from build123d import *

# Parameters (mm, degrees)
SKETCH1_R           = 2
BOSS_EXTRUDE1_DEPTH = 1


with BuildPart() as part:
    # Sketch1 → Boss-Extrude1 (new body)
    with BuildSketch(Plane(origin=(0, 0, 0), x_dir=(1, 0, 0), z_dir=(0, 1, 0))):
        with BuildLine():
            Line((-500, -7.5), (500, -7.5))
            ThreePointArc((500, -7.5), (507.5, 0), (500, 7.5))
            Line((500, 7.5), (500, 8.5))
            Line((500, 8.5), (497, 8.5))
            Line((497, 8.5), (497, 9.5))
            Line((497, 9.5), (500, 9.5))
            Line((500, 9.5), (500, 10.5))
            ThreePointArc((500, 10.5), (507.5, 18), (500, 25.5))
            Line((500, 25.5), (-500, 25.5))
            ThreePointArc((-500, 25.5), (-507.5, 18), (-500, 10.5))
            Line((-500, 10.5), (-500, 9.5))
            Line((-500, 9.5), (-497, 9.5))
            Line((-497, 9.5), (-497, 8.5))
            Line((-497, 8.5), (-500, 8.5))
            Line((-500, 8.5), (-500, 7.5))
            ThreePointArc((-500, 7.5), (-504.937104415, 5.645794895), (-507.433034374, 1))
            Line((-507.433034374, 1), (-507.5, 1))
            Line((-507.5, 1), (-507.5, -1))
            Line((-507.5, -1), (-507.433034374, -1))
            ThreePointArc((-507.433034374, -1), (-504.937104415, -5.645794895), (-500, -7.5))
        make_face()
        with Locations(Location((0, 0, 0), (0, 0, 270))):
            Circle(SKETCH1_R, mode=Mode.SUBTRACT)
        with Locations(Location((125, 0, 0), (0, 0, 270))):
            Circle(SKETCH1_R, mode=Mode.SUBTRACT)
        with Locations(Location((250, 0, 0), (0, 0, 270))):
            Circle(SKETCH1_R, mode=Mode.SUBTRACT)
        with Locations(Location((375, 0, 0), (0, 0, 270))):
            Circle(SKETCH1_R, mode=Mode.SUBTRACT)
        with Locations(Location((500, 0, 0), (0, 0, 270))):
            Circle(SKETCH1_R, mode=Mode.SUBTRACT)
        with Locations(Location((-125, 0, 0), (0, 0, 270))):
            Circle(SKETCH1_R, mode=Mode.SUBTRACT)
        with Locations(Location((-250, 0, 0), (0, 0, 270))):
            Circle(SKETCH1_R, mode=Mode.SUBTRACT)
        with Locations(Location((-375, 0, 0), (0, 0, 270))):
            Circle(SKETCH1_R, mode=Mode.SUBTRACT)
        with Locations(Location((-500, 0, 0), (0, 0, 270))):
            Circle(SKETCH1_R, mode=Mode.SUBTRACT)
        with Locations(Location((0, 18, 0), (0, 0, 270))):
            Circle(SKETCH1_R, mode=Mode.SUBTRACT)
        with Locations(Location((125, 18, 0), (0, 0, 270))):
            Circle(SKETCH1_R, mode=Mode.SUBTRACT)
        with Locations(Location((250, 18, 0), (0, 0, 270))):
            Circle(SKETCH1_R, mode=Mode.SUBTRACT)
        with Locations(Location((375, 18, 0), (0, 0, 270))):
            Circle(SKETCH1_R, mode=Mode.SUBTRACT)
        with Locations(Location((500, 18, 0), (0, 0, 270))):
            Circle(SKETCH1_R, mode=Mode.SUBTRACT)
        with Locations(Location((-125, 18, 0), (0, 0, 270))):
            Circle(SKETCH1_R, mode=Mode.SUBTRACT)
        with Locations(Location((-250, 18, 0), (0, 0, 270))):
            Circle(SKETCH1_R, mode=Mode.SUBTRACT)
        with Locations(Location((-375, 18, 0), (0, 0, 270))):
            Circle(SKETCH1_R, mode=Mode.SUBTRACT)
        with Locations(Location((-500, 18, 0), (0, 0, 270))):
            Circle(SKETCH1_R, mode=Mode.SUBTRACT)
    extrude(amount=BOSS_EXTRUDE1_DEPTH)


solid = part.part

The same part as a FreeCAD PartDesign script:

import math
import FreeCAD as App
import Part
import Sketcher

V = App.Vector

doc = App.newDocument("Part")
params = doc.addObject("Spreadsheet::Sheet", "Params")
for row, (alias, value) in enumerate([
    ("sketch1_diameter", "4 mm"),
    ("sketch1_radius", "7.5 mm"),
    ("sketch1_width", "1000 mm"),
    ("sketch1_width2", "3 mm"),
    ("sketch1_height", "1 mm"),
    ("pad1_length", "1 mm"),
], start=1):
    params.set(f"A{row}", alias)
    params.set(f"B{row}", "=" + value)
    params.setAlias(f"B{row}", alias)

body = doc.addObject("PartDesign::Body", "Body")

sketch1 = body.newObject("Sketcher::SketchObject", "Sketch")
sketch1.AttachmentSupport = (doc.getObject("XZ_Plane"), [""])
sketch1.MapMode = "FlatFace"
sketch1.addGeometry(Part.LineSegment(V(-500, 7.5, 0), V(500, 7.5, 0)), False)
sketch1.addGeometry(Part.ArcOfCircle(Part.Circle(V(500, 0, 0), V(0, 0, 1), 7.5), math.radians(-90), math.radians(90)), False)
sketch1.addGeometry(Part.LineSegment(V(500, -7.5, 0), V(500, -8.5, 0)), False)
sketch1.addGeometry(Part.LineSegment(V(500, -8.5, 0), V(497, -8.5, 0)), False)
sketch1.addGeometry(Part.LineSegment(V(497, -8.5, 0), V(497, -9.5, 0)), False)
sketch1.addGeometry(Part.LineSegment(V(497, -9.5, 0), V(500, -9.5, 0)), False)
sketch1.addGeometry(Part.LineSegment(V(500, -9.5, 0), V(500, -10.5, 0)), False)
sketch1.addGeometry(Part.ArcOfCircle(Part.Circle(V(500, -18, 0), V(0, 0, 1), 7.5), math.radians(-90), math.radians(90)), False)
sketch1.addGeometry(Part.LineSegment(V(500, -25.5, 0), V(-500, -25.5, 0)), False)
sketch1.addGeometry(Part.ArcOfCircle(Part.Circle(V(-500, -18, 0), V(0, 0, 1), 7.5), math.radians(90), math.radians(270)), False)
sketch1.addGeometry(Part.LineSegment(V(-500, -10.5, 0), V(-500, -9.5, 0)), False)
sketch1.addGeometry(Part.LineSegment(V(-500, -9.5, 0), V(-497, -9.5, 0)), False)
sketch1.addGeometry(Part.LineSegment(V(-497, -9.5, 0), V(-497, -8.5, 0)), False)
sketch1.addGeometry(Part.LineSegment(V(-497, -8.5, 0), V(-500, -8.5, 0)), False)
sketch1.addGeometry(Part.LineSegment(V(-500, -8.5, 0), V(-500, -7.5, 0)), False)
sketch1.addGeometry(Part.ArcOfCircle(Part.Circle(V(-500, 0, 0), V(0, 0, 1), 7.5), math.radians(-172), math.radians(-90)), False)
sketch1.addGeometry(Part.LineSegment(V(-507.43, -1, 0), V(-507.5, -1, 0)), False)
sketch1.addGeometry(Part.LineSegment(V(-507.5, -1, 0), V(-507.5, 1, 0)), False)
sketch1.addGeometry(Part.LineSegment(V(-507.5, 1, 0), V(-507.43, 1, 0)), False)
sketch1.addGeometry(Part.ArcOfCircle(Part.Circle(V(-500, 0, 0), V(0, 0, 1), 7.5), math.radians(90), math.radians(172)), False)
sketch1.addGeometry(Part.Circle(V(-500, 0, 0), V(0, 0, 1), 2), False)
sketch1.addGeometry(Part.Circle(V(-375, 0, 0), V(0, 0, 1), 2), False)
sketch1.addGeometry(Part.Circle(V(-250, 0, 0), V(0, 0, 1), 2), False)
sketch1.addGeometry(Part.Circle(V(-125, 0, 0), V(0, 0, 1), 2), False)
sketch1.addGeometry(Part.Circle(V(0, 0, 0), V(0, 0, 1), 2), False)
sketch1.addGeometry(Part.Circle(V(125, 0, 0), V(0, 0, 1), 2), False)
sketch1.addGeometry(Part.Circle(V(250, 0, 0), V(0, 0, 1), 2), False)
sketch1.addGeometry(Part.Circle(V(375, 0, 0), V(0, 0, 1), 2), False)
sketch1.addGeometry(Part.Circle(V(500, 0, 0), V(0, 0, 1), 2), False)
sketch1.addGeometry(Part.Circle(V(-500, -18, 0), V(0, 0, 1), 2), False)
sketch1.addGeometry(Part.Circle(V(-375, -18, 0), V(0, 0, 1), 2), False)
sketch1.addGeometry(Part.Circle(V(-250, -18, 0), V(0, 0, 1), 2), False)
sketch1.addGeometry(Part.Circle(V(-125, -18, 0), V(0, 0, 1), 2), False)
sketch1.addGeometry(Part.Circle(V(0, -18, 0), V(0, 0, 1), 2), False)
sketch1.addGeometry(Part.Circle(V(125, -18, 0), V(0, 0, 1), 2), False)
sketch1.addGeometry(Part.Circle(V(250, -18, 0), V(0, 0, 1), 2), False)
sketch1.addGeometry(Part.Circle(V(375, -18, 0), V(0, 0, 1), 2), False)
sketch1.addGeometry(Part.Circle(V(500, -18, 0), V(0, 0, 1), 2), False)
sketch1.addConstraint(Sketcher.Constraint("Tangent", 0, 2, 1, 2))
sketch1.addConstraint(Sketcher.Constraint("Coincident", 1, 1, 2, 1))
sketch1.addConstraint(Sketcher.Constraint("Coincident", 2, 2, 3, 1))
sketch1.addConstraint(Sketcher.Constraint("Coincident", 3, 2, 4, 1))
sketch1.addConstraint(Sketcher.Constraint("Coincident", 4, 2, 5, 1))
sketch1.addConstraint(Sketcher.Constraint("Coincident", 5, 2, 6, 1))
sketch1.addConstraint(Sketcher.Constraint("Coincident", 6, 2, 7, 2))
sketch1.addConstraint(Sketcher.Constraint("Tangent", 7, 1, 8, 1))
sketch1.addConstraint(Sketcher.Constraint("Tangent", 8, 2, 9, 2))
sketch1.addConstraint(Sketcher.Constraint("Coincident", 9, 1, 10, 1))
sketch1.addConstraint(Sketcher.Constraint("Coincident", 10, 2, 11, 1))
sketch1.addConstraint(Sketcher.Constraint("Coincident", 11, 2, 12, 1))
sketch1.addConstraint(Sketcher.Constraint("Coincident", 12, 2, 13, 1))
sketch1.addConstraint(Sketcher.Constraint("Coincident", 13, 2, 14, 1))
sketch1.addConstraint(Sketcher.Constraint("Coincident", 14, 2, 15, 2))
sketch1.addConstraint(Sketcher.Constraint("Coincident", 15, 1, 16, 1))
sketch1.addConstraint(Sketcher.Constraint("Coincident", 16, 2, 17, 1))
sketch1.addConstraint(Sketcher.Constraint("Coincident", 17, 2, 18, 1))
sketch1.addConstraint(Sketcher.Constraint("Coincident", 18, 2, 19, 2))
sketch1.addConstraint(Sketcher.Constraint("Tangent", 19, 1, 0, 1))
sketch1.addConstraint(Sketcher.Constraint("Horizontal", 0))
sketch1.addConstraint(Sketcher.Constraint("Vertical", 2))
sketch1.addConstraint(Sketcher.Constraint("Horizontal", 3))
sketch1.addConstraint(Sketcher.Constraint("Vertical", 4))
sketch1.addConstraint(Sketcher.Constraint("Horizontal", 5))
sketch1.addConstraint(Sketcher.Constraint("Vertical", 6))
sketch1.addConstraint(Sketcher.Constraint("Horizontal", 8))
sketch1.addConstraint(Sketcher.Constraint("Vertical", 10))
sketch1.addConstraint(Sketcher.Constraint("Horizontal", 11))
sketch1.addConstraint(Sketcher.Constraint("Vertical", 12))
sketch1.addConstraint(Sketcher.Constraint("Horizontal", 13))
sketch1.addConstraint(Sketcher.Constraint("Vertical", 14))
sketch1.addConstraint(Sketcher.Constraint("Horizontal", 16))
sketch1.addConstraint(Sketcher.Constraint("Vertical", 17))
sketch1.addConstraint(Sketcher.Constraint("Horizontal", 18))
sketch1.addConstraint(Sketcher.Constraint("Coincident", 24, 3, -1, 1))
sketch1.addConstraint(Sketcher.Constraint("Coincident", 19, 3, 15, 3))
sketch1.addConstraint(Sketcher.Constraint("Coincident", 20, 3, 15, 3))
sketch1.addConstraint(Sketcher.Constraint("Coincident", 28, 3, 1, 3))
sketch1.addConstraint(Sketcher.Constraint("Coincident", 29, 3, 9, 3))
sketch1.addConstraint(Sketcher.Constraint("Coincident", 37, 3, 7, 3))
sketch1.addConstraint(Sketcher.Constraint("Equal", 1, 7))
sketch1.addConstraint(Sketcher.Constraint("Equal", 7, 9))
sketch1.addConstraint(Sketcher.Constraint("Equal", 9, 15))
sketch1.addConstraint(Sketcher.Constraint("Equal", 15, 19))
sketch1.addConstraint(Sketcher.Constraint("Equal", 20, 21))
sketch1.addConstraint(Sketcher.Constraint("Equal", 21, 22))
sketch1.addConstraint(Sketcher.Constraint("Equal", 22, 23))
sketch1.addConstraint(Sketcher.Constraint("Equal", 23, 24))
sketch1.addConstraint(Sketcher.Constraint("Equal", 24, 25))
sketch1.addConstraint(Sketcher.Constraint("Equal", 25, 26))
sketch1.addConstraint(Sketcher.Constraint("Equal", 26, 27))
sketch1.addConstraint(Sketcher.Constraint("Equal", 27, 28))
sketch1.addConstraint(Sketcher.Constraint("Equal", 28, 29))
sketch1.addConstraint(Sketcher.Constraint("Equal", 29, 30))
sketch1.addConstraint(Sketcher.Constraint("Equal", 30, 31))
sketch1.addConstraint(Sketcher.Constraint("Equal", 31, 32))
sketch1.addConstraint(Sketcher.Constraint("Equal", 32, 33))
sketch1.addConstraint(Sketcher.Constraint("Equal", 33, 34))
sketch1.addConstraint(Sketcher.Constraint("Equal", 34, 35))
sketch1.addConstraint(Sketcher.Constraint("Equal", 35, 36))
sketch1.addConstraint(Sketcher.Constraint("Equal", 36, 37))
sketch1.addConstraint(Sketcher.Constraint("Symmetric", 1, 3, 15, 3, -1, 1))
sketch1.addConstraint(Sketcher.Constraint("Symmetric", 23, 3, 25, 3, -1, 1))
sketch1.addConstraint(Sketcher.Constraint("Symmetric", 22, 3, 26, 3, -1, 1))
sketch1.addConstraint(Sketcher.Constraint("Symmetric", 21, 3, 27, 3, -1, 1))
sketch1.addConstraint(Sketcher.Constraint("Symmetric", 32, 3, 34, 3, -2))
sketch1.addConstraint(Sketcher.Constraint("Symmetric", 31, 3, 35, 3, -2))
sketch1.addConstraint(Sketcher.Constraint("Symmetric", 30, 3, 36, 3, -2))
sketch1.addConstraint(Sketcher.Constraint("Symmetric", 5, 2, 10, 2, -2))
sketch1.addConstraint(Sketcher.Constraint("Symmetric", 3, 2, 12, 2, -2))
sketch1.addConstraint(Sketcher.Constraint("PointOnObject", 21, 3, -1))
sketch1.addConstraint(Sketcher.Constraint("PointOnObject", 22, 3, -1))
sketch1.addConstraint(Sketcher.Constraint("PointOnObject", 23, 3, -1))
sketch1.addConstraint(Sketcher.Constraint("PointOnObject", 33, 3, -2))
sketch1.addConstraint(Sketcher.Constraint("Horizontal", 29, 3, 30, 3))
sketch1.addConstraint(Sketcher.Constraint("Horizontal", 30, 3, 31, 3))
sketch1.addConstraint(Sketcher.Constraint("Horizontal", 31, 3, 32, 3))
sketch1.addConstraint(Sketcher.Constraint("Horizontal", 32, 3, 33, 3))
sketch1.addConstraint(Sketcher.Constraint("Vertical", 1, 3, 7, 3))
sketch1.addConstraint(Sketcher.Constraint("Vertical", 9, 3, 15, 3))
sketch1.addConstraint(Sketcher.Constraint("Vertical", 21, 3, 30, 3))
sketch1.addConstraint(Sketcher.Constraint("Vertical", 22, 3, 31, 3))
sketch1.addConstraint(Sketcher.Constraint("Vertical", 23, 3, 32, 3))
sketch1.addConstraint(Sketcher.Constraint("Vertical", 0, 2, 1, 1))
sketch1.addConstraint(Sketcher.Constraint("Vertical", 2, 2, 5, 2))
sketch1.addConstraint(Sketcher.Constraint("Vertical", 10, 2, 13, 2))
sketch1.addConstraint(Sketcher.Constraint("Vertical", 15, 1, 18, 2))
sketch1.addConstraint(Sketcher.Constraint("Equal", 2, 4))
sketch1.addConstraint(Sketcher.Constraint("Equal", 4, 6))
sketch1.addConstraint(Sketcher.Constraint("Diameter", 20, 4.0))
sketch1.addConstraint(Sketcher.Constraint("Radius", 1, 7.5))
sketch1.addConstraint(Sketcher.Constraint("DistanceX", 0, 1, 0, 2, 1000.0))
sketch1.addConstraint(Sketcher.Constraint("DistanceX", 3, 2, 3, 1, 3.0))
sketch1.addConstraint(Sketcher.Constraint("DistanceY", 2, 2, 2, 1, 1.0))
sketch1.addConstraint(Sketcher.Constraint("DistanceY", 17, 1, 17, 2, 2.0))
sketch1.addConstraint(Sketcher.Constraint("DistanceX", 21, 3, -1, 1, 375.0))
sketch1.addConstraint(Sketcher.Constraint("DistanceX", 22, 3, -1, 1, 250.0))
sketch1.addConstraint(Sketcher.Constraint("DistanceX", 23, 3, -1, 1, 125.0))
sketch1.addConstraint(Sketcher.Constraint("DistanceX", 16, 2, -1, 1, 507.5))
sketch1.setExpression("Constraints[90]", "Params.sketch1_diameter")
sketch1.setExpression("Constraints[91]", "Params.sketch1_radius")
sketch1.setExpression("Constraints[92]", "Params.sketch1_width")
sketch1.setExpression("Constraints[93]", "Params.sketch1_width2")
sketch1.setExpression("Constraints[94]", "Params.sketch1_height")
pad1 = body.newObject("PartDesign::Pad", "Pad")
pad1.Profile = sketch1
pad1.setExpression("Length", "Params.pad1_length")
pad1.Reversed = True

doc.recompute()
